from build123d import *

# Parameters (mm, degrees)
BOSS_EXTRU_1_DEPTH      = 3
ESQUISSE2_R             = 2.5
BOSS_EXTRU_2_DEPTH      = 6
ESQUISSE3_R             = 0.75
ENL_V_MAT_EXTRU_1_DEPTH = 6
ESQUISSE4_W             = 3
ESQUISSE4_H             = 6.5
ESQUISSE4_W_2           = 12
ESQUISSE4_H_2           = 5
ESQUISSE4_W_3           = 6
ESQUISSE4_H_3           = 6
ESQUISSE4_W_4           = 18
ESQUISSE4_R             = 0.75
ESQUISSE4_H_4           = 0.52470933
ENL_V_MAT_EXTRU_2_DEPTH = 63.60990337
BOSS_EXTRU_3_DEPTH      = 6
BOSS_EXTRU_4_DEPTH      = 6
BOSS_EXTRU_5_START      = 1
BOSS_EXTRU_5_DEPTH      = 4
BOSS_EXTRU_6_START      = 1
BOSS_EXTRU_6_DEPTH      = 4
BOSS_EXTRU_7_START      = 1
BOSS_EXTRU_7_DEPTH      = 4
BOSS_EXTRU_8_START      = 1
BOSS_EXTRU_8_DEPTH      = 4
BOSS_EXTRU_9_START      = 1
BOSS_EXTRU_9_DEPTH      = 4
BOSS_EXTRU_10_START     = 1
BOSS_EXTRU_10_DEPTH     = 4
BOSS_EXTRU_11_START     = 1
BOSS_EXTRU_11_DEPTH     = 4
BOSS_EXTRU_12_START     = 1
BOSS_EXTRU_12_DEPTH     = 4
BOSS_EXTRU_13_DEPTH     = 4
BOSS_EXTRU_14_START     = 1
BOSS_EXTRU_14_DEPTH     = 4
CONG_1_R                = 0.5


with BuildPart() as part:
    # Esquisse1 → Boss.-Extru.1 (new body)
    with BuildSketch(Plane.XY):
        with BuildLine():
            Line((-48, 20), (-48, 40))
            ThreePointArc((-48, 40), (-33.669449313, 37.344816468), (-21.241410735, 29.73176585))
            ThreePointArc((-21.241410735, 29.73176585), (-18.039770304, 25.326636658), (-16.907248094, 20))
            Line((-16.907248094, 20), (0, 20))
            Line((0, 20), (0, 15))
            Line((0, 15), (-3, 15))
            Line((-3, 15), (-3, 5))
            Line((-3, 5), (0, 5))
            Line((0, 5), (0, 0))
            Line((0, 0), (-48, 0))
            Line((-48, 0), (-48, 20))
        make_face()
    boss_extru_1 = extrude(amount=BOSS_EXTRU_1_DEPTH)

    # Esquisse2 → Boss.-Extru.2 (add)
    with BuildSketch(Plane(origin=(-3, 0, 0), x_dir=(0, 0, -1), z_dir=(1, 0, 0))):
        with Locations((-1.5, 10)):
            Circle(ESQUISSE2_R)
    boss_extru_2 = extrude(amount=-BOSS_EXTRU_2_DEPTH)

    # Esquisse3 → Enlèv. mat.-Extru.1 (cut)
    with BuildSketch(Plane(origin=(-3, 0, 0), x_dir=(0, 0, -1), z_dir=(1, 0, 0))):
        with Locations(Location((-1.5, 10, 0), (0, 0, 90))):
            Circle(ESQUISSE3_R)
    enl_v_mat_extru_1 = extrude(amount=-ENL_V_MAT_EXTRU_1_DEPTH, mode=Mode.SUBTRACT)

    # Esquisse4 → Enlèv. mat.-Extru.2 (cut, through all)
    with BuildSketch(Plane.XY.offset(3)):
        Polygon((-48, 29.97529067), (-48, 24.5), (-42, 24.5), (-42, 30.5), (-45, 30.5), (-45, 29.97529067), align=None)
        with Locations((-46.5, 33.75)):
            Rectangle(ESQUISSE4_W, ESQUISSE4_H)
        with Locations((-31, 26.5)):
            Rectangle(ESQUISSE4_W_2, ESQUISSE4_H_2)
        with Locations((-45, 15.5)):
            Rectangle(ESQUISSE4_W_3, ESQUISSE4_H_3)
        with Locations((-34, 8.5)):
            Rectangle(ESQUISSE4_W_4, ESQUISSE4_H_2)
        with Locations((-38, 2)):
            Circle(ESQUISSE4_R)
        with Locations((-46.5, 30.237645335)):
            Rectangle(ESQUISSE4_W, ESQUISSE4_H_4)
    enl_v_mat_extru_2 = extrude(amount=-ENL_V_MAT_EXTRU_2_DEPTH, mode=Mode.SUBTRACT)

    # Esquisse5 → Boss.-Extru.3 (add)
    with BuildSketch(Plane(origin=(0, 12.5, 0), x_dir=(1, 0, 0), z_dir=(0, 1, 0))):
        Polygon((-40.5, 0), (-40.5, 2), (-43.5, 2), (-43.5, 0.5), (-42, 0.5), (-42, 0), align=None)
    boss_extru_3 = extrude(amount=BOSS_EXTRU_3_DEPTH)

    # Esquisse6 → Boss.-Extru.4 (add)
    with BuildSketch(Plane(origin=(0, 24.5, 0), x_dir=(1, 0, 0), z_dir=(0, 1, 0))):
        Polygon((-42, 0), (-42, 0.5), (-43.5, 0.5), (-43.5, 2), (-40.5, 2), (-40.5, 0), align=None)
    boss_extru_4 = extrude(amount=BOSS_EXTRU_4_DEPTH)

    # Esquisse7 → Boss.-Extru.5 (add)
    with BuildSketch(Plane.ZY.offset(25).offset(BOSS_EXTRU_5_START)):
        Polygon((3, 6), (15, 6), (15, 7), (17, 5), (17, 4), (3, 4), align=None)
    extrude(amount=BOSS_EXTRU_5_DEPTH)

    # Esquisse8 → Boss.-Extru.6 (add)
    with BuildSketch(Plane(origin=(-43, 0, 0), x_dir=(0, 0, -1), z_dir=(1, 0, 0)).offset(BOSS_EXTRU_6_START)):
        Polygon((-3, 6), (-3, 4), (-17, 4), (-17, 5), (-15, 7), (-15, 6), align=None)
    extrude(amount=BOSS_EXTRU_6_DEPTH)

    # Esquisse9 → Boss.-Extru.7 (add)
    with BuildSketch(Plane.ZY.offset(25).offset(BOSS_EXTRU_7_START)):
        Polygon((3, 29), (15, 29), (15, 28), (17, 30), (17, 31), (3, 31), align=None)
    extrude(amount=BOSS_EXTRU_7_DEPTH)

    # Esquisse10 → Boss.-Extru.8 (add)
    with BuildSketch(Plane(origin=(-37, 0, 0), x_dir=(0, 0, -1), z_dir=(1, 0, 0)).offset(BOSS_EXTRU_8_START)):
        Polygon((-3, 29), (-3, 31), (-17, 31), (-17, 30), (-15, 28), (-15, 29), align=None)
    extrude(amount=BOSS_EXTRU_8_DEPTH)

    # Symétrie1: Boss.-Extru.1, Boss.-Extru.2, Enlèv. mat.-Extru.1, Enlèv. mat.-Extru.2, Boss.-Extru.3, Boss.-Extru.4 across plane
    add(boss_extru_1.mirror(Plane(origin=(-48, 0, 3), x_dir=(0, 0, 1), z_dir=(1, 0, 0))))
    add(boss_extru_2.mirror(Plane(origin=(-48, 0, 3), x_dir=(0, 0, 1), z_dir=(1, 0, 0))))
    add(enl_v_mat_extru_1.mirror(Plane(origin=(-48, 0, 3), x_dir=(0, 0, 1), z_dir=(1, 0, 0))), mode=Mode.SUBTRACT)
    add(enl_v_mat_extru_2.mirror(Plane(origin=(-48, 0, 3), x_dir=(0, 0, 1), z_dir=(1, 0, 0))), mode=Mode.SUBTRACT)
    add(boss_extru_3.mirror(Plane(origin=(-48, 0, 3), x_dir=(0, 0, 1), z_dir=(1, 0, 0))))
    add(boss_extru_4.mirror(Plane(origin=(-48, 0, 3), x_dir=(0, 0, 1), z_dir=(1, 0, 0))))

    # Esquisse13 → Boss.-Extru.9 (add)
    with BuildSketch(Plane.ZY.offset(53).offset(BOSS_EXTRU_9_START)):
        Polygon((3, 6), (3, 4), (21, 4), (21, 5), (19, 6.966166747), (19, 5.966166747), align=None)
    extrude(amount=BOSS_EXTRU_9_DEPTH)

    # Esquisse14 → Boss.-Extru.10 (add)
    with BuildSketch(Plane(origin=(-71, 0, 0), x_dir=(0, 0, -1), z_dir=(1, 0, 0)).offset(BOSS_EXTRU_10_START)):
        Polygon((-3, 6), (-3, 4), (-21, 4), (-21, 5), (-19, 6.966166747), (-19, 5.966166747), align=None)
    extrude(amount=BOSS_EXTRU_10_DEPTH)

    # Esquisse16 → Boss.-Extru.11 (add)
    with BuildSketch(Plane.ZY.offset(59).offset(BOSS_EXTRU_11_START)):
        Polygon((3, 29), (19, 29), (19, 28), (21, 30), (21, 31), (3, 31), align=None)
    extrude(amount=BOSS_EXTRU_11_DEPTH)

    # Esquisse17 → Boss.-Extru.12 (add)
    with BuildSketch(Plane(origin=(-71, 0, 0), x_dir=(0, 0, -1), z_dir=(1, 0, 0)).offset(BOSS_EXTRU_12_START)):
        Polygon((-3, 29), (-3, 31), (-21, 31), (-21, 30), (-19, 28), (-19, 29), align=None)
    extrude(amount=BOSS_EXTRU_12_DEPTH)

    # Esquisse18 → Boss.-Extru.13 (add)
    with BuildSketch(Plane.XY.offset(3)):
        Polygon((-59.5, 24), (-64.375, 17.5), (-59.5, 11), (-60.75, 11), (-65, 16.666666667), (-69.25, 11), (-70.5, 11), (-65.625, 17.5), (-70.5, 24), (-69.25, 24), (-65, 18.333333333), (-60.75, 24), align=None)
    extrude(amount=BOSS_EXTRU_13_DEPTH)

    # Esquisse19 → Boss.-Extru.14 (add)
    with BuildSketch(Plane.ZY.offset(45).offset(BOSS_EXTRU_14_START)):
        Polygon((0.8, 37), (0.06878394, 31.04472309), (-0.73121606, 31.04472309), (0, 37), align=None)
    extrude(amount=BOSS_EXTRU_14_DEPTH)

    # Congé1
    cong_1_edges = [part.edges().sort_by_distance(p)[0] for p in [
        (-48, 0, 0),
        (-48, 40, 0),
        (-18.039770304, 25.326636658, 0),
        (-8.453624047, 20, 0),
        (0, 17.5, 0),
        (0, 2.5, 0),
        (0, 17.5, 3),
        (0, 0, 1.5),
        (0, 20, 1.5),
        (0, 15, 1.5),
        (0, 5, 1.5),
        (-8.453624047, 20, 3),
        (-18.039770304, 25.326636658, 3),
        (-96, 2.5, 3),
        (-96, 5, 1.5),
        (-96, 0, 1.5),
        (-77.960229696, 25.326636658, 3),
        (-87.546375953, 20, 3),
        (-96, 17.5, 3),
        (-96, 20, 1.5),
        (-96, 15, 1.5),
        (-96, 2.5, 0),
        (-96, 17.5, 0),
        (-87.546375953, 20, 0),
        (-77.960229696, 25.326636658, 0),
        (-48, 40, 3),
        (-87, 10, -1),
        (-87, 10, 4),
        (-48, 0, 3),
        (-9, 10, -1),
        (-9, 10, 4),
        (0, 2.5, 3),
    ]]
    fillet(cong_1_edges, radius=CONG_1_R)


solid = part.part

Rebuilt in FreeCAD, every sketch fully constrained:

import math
import FreeCAD as App
import Part
import Sketcher
Q = App.Units.Quantity


def edges_at(feature, points):
    """Names of the edges that pass closest to the given points."""
    edges = feature.Shape.Edges
    near = lambda p: min(range(len(edges)), key=lambda i: edges[i].distToShape(Part.Vertex(*p))[0])
    return sorted({f"Edge{near(p) + 1}" for p in points})


def add_polygon(sketch, points):
    """Adds a closed chain of lines whose ends are joined by coincident constraints."""
    first, n = sketch.GeometryCount, len(points)
    for a, b in zip(points, points[1:] + points[:1]):
        sketch.addGeometry(Part.LineSegment(App.Vector(*a, 0), App.Vector(*b, 0)), False)
    for i in range(n):
        sketch.addConstraint(Sketcher.Constraint("Coincident", first + i, 2, first + (i + 1) % n, 1))

doc = App.newDocument("Part")
body = doc.addObject("PartDesign::Body", "Body")

# Sketch on XY plane
sketch1 = body.newObject("Sketcher::SketchObject", "Sketch")
sketch1.AttachmentSupport = (doc.getObject("XY_Plane"), [""])
sketch1.MapMode = "FlatFace"
sketch1.addGeometry([
    Part.ArcOfCircle(Part.Circle(App.Vector(-48, 0, 0), App.Vector(0, 0, 1), 40), math.radians(48), math.radians(90)),  # 0
    Part.LineSegment(App.Vector(-48, 40, 0), App.Vector(-48, 0, 0)),  # 1
    Part.LineSegment(App.Vector(-48, 0, 0), App.Vector(0, 0, 0)),  # 2
    Part.LineSegment(App.Vector(0, 0, 0), App.Vector(0, 5, 0)),  # 3
    Part.LineSegment(App.Vector(0, 5, 0), App.Vector(-3, 5, 0)),  # 4
    Part.LineSegment(App.Vector(-3, 5, 0), App.Vector(-3, 15, 0)),  # 5
    Part.LineSegment(App.Vector(-3, 15, 0), App.Vector(0, 15, 0)),  # 6
    Part.LineSegment(App.Vector(0, 15, 0), App.Vector(0, 20, 0)),  # 7
    Part.LineSegment(App.Vector(0, 20, 0), App.Vector(-16.9, 20, 0)),  # 8
    Part.ArcOfCircle(Part.Circle(App.Vector(-30, 20, 0), App.Vector(0, 0, 1), 13.1), math.radians(0), math.radians(48)),  # 9
], False)
sketch1.addConstraint([
    Sketcher.Constraint("Coincident", 0, 2, 1, 1),
    Sketcher.Constraint("Coincident", 1, 2, 2, 1),
    Sketcher.Constraint("Coincident", 2, 2, 3, 1),
    Sketcher.Constraint("Coincident", 3, 2, 4, 1),
    Sketcher.Constraint("Coincident", 4, 2, 5, 1),
    Sketcher.Constraint("Coincident", 5, 2, 6, 1),
    Sketcher.Constraint("Coincident", 6, 2, 7, 1),
    Sketcher.Constraint("Coincident", 7, 2, 8, 1),
    Sketcher.Constraint("Coincident", 8, 2, 9, 1),
    Sketcher.Constraint("Tangent", 9, 2, 0, 1),
    Sketcher.Constraint("Vertical", 1),
    Sketcher.Constraint("Horizontal", 2),
    Sketcher.Constraint("Vertical", 3),
    Sketcher.Constraint("Horizontal", 4),
    Sketcher.Constraint("Vertical", 5),
    Sketcher.Constraint("Horizontal", 6),
    Sketcher.Constraint("Vertical", 7),
    Sketcher.Constraint("Horizontal", 8),
    Sketcher.Constraint("Coincident", 2, 2, -1, 1),
    Sketcher.Constraint("Coincident", 1, 2, 0, 3),
    Sketcher.Constraint("PointOnObject", 6, 2, -2),
    Sketcher.Constraint("Horizontal", 9, 3, 7, 2),
    Sketcher.Constraint("Equal", 3, 7),
    Sketcher.Constraint("Radius", 0, 40.0),
    Sketcher.Constraint("DistanceX", 2, 1, 2, 2, 48.0),
    Sketcher.Constraint("DistanceX", 4, 2, 4, 1, 3.0),
    Sketcher.Constraint("DistanceY", 3, 1, 3, 2, 5.0),
    Sketcher.Constraint("DistanceY", 5, 1, 5, 2, 10.0),
    Sketcher.Constraint("DistanceX", 9, 3, -1, 1, 30.0),
])
pad1 = body.newObject("PartDesign::Pad", "Pad")
pad1.Profile = sketch1
pad1.Length = 3

# Sketch on YZ plane
sketch2 = body.newObject("Sketcher::SketchObject", "Sketch001")
sketch2.AttachmentSupport = (doc.getObject("YZ_Plane"), [""])
sketch2.MapMode = "FlatFace"
sketch2.AttachmentOffset = App.Placement(App.Vector(0, 0, -3), App.Rotation())
sketch2.addGeometry(Part.Circle(App.Vector(10, 1.5, 0), App.Vector(0, 0, 1), 2.5), False)
sketch2.addConstraint([
    Sketcher.Constraint("Diameter", 0, 5.0),
    Sketcher.Constraint("DistanceX", -1, 1, 0, 3, 10.0),
    Sketcher.Constraint("DistanceY", -1, 1, 0, 3, 1.5),
])
pad2 = body.newObject("PartDesign::Pad", "Pad001")
pad2.Profile = sketch2
pad2.Length = 6
pad2.Reversed = True

# Sketch on YZ plane
sketch3 = body.newObject("Sketcher::SketchObject", "Sketch002")
sketch3.AttachmentSupport = (doc.getObject("YZ_Plane"), [""])
sketch3.MapMode = "FlatFace"
sketch3.AttachmentOffset = App.Placement(App.Vector(0, 0, -3), App.Rotation())
sketch3.addGeometry(Part.Circle(App.Vector(10, 1.5, 0), App.Vector(0, 0, 1), 0.8), False)
sketch3.addConstraint([
    Sketcher.Constraint("Diameter", 0, 1.5),
    Sketcher.Constraint("DistanceX", -1, 1, 0, 3, 10.0),
    Sketcher.Constraint("DistanceY", -1, 1, 0, 3, 1.5),
])
pocket1 = body.newObject("PartDesign::Pocket", "Pocket")
pocket1.Profile = sketch3
pocket1.Length = 6

# Sketch on XY plane
sketch4 = body.newObject("Sketcher::SketchObject", "Sketch003")
sketch4.AttachmentSupport = (doc.getObject("XY_Plane"), [""])
sketch4.MapMode = "FlatFace"
sketch4.AttachmentOffset = App.Placement(App.Vector(0, 0, 3), App.Rotation())
add_polygon(sketch4, [(-48, 24.5), (-42, 24.5), (-42, 30.5), (-45, 30.5), (-45, 37), (-48, 37)])  # lines 0-5
add_polygon(sketch4, [(-37, 29), (-37, 24), (-25, 24), (-25, 29)])  # lines 6-9
add_polygon(sketch4, [(-48, 18.5), (-48, 12.5), (-42, 12.5), (-42, 18.5)])  # lines 10-13
add_polygon(sketch4, [(-43, 11), (-43, 6), (-25, 6), (-25, 11)])  # lines 14-17
sketch4.addGeometry(Part.Circle(App.Vector(-38, 2, 0), App.Vector(0, 0, 1), 0.8), False)  # 18
sketch4.addConstraint([
    Sketcher.Constraint("Horizontal", 0),
    Sketcher.Constraint("Vertical", 1),
    Sketcher.Constraint("Horizontal", 2),
    Sketcher.Constraint("Vertical", 3),
    Sketcher.Constraint("Horizontal", 4),
    Sketcher.Constraint("Vertical", 5),
    Sketcher.Constraint("Vertical", 6),
    Sketcher.Constraint("Horizontal", 7),
    Sketcher.Constraint("Vertical", 8),
    Sketcher.Constraint("Horizontal", 9),
    Sketcher.Constraint("Vertical", 10),
    Sketcher.Constraint("Horizontal", 11),
    Sketcher.Constraint("Vertical", 12),
    Sketcher.Constraint("Horizontal", 13),
    Sketcher.Constraint("Vertical", 14),
    Sketcher.Constraint("Horizontal", 15),
    Sketcher.Constraint("Vertical", 16),
    Sketcher.Constraint("Horizontal", 17),
    Sketcher.Constraint("Vertical", 5, 2, 10, 2),
    Sketcher.Constraint("Vertical", 1, 2, 11, 2),
    Sketcher.Constraint("Vertical", 8, 2, 15, 2),
    Sketcher.Constraint("Equal", 2, 4),
    Sketcher.Constraint("Equal", 13, 1),
    Sketcher.Constraint("Equal", 1, 10),
    Sketcher.Constraint("Equal", 8, 14),
    Sketcher.Constraint("Diameter", 18, 1.5),
    Sketcher.Constraint("DistanceX", 0, 1, 0, 2, 6.0),
    Sketcher.Constraint("DistanceX", 7, 1, 7, 2, 12.0),
    Sketcher.Constraint("DistanceX", 15, 1, 15, 2, 18.0),
    Sketcher.Constraint("DistanceY", 6, 2, 6, 1, 5.0),
    Sketcher.Constraint("DistanceY", 3, 1, 3, 2, 6.5),
    Sketcher.Constraint("DistanceX", 18, 3, -1, 1, 38.0),
    Sketcher.Constraint("DistanceY", -1, 1, 18, 3, 2.0),
    Sketcher.Constraint("DistanceX", 0, 2, -1, 1, 42.0),
    Sketcher.Constraint("DistanceY", -1, 1, 3, 2, 37.0),
    Sketcher.Constraint("DistanceX", 6, 2, -1, 1, 37.0),
    Sketcher.Constraint("DistanceY", -1, 1, 6, 2, 24.0),
    Sketcher.Constraint("DistanceY", -1, 1, 14, 2, 6.0),
    Sketcher.Constraint("DistanceY", 10, 2, 5, 2, 12.0),
])
pocket2 = body.newObject("PartDesign::Pocket", "Pocket001")
pocket2.Profile = sketch4
pocket2.Type = "ThroughAll"

# Sketch on XZ plane
sketch5 = body.newObject("Sketcher::SketchObject", "Sketch004")
sketch5.AttachmentSupport = (doc.getObject("XZ_Plane"), [""])
sketch5.MapMode = "FlatFace"
sketch5.AttachmentOffset = App.Placement(App.Vector(0, 0, -12.5), App.Rotation())
add_polygon(sketch5, [(-40.5, 0), (-40.5, -2), (-43.5, -2), (-43.5, -0.5), (-42, -0.5), (-42, 0)])  # lines 0-5
sketch5.addConstraint([
    Sketcher.Constraint("Vertical", 0),
    Sketcher.Constraint("Horizontal", 1),
    Sketcher.Constraint("Vertical", 2),
    Sketcher.Constraint("Horizontal", 3),
    Sketcher.Constraint("Vertical", 4),
    Sketcher.Constraint("Horizontal", 5),
    Sketcher.Constraint("PointOnObject", 4, 2, -1),
    Sketcher.Constraint("Equal", 3, 5),
    Sketcher.Constraint("Equal", 5, 2),
    Sketcher.Constraint("DistanceX", 1, 2, 1, 1, 3.0),
    Sketcher.Constraint("DistanceY", 0, 2, 0, 1, 2.0),
    Sketcher.Constraint("DistanceX", 3, 2, -1, 1, 42.0),
])
pad3 = body.newObject("PartDesign::Pad", "Pad002")
pad3.Profile = sketch5
pad3.Length = 6
pad3.Reversed = True

# Sketch on XZ plane
sketch6 = body.newObject("Sketcher::SketchObject", "Sketch005")
sketch6.AttachmentSupport = (doc.getObject("XZ_Plane"), [""])
sketch6.MapMode = "FlatFace"
sketch6.AttachmentOffset = App.Placement(App.Vector(0, 0, -24.5), App.Rotation())
add_polygon(sketch6, [(-42, -0.5), (-42, 0), (-40.5, 0), (-40.5, -2), (-43.5, -2), (-43.5, -0.5)])  # lines 0-5
sketch6.addConstraint([
    Sketcher.Constraint("Vertical", 0),
    Sketcher.Constraint("Horizontal", 1),
    Sketcher.Constraint("Vertical", 2),
    Sketcher.Constraint("Horizontal", 3),
    Sketcher.Constraint("Vertical", 4),
    Sketcher.Constraint("Horizontal", 5),
    Sketcher.Constraint("PointOnObject", 0, 2, -1),
    Sketcher.Constraint("Equal", 1, 5),
    Sketcher.Constraint("Equal", 5, 4),
    Sketcher.Constraint("DistanceX", 3, 2, 3, 1, 3.0),
    Sketcher.Constraint("DistanceY", 2, 2, 2, 1, 2.0),
    Sketcher.Constraint("DistanceX", 0, 2, -1, 1, 42.0),
])
pad4 = body.newObject("PartDesign::Pad", "Pad003")
pad4.Profile = sketch6
pad4.Length = 6
pad4.Reversed = True

# Sketch on YZ plane
sketch7 = body.newObject("Sketcher::SketchObject", "Sketch006")
sketch7.AttachmentSupport = (doc.getObject("YZ_Plane"), [""])
sketch7.MapMode = "FlatFace"
sketch7.AttachmentOffset = App.Placement(App.Vector(0, 0, -26), App.Rotation())
add_polygon(sketch7, [(6, 15), (6, 3), (4, 3), (4, 17), (5, 17), (7, 15)])  # lines 0-5
sketch7.addConstraint([
    Sketcher.Constraint("Vertical", 0),
    Sketcher.Constraint("Horizontal", 1),
    Sketcher.Constraint("Vertical", 2),
    Sketcher.Constraint("Horizontal", 3),
    Sketcher.Constraint("Horizontal", 5),
    Sketcher.Constraint("Equal", 3, 5),
    Sketcher.Constraint("DistanceX", 1, 2, 1, 1, 2.0),
    Sketcher.Constraint("DistanceX", 3, 1, 3, 2, 1.0),
    Sketcher.Constraint("DistanceY", 0, 2, 0, 1, 12.0),
    Sketcher.Constraint("DistanceY", 2, 1, 2, 2, 14.0),
    Sketcher.Constraint("DistanceX", -1, 1, 0, 2, 6.0),
    Sketcher.Constraint("DistanceY", -1, 1, 0, 2, 3.0),
])
pad5 = body.newObject("PartDesign::Pad", "Pad004")
pad5.Profile = sketch7
pad5.Length = 4
pad5.Reversed = True

# Sketch on YZ plane
sketch8 = body.newObject("Sketcher::SketchObject", "Sketch007")
sketch8.AttachmentSupport = (doc.getObject("YZ_Plane"), [""])
sketch8.MapMode = "FlatFace"
sketch8.AttachmentOffset = App.Placement(App.Vector(0, 0, -42), App.Rotation())
add_polygon(sketch8, [(4, 3), (6, 3), (6, 15), (7, 15), (5, 17), (4, 17)])  # lines 0-5
sketch8.addConstraint([
    Sketcher.Constraint("Horizontal", 0),
    Sketcher.Constraint("Vertical", 1),
    Sketcher.Constraint("Horizontal", 2),
    Sketcher.Constraint("Horizontal", 4),
    Sketcher.Constraint("Vertical", 5),
    Sketcher.Constraint("Equal", 2, 4),
    Sketcher.Constraint("DistanceX", 0, 1, 0, 2, 2.0),
    Sketcher.Constraint("DistanceX", 2, 1, 2, 2, 1.0),
    Sketcher.Constraint("DistanceY", 1, 1, 1, 2, 12.0),
    Sketcher.Constraint("DistanceY", 5, 2, 5, 1, 14.0),
    Sketcher.Constraint("DistanceX", -1, 1, 0, 2, 6.0),
    Sketcher.Constraint("DistanceY", -1, 1, 0, 2, 3.0),
])
pad6 = body.newObject("PartDesign::Pad", "Pad005")
pad6.Profile = sketch8
pad6.Length = 4

# Sketch on YZ plane
sketch9 = body.newObject("Sketcher::SketchObject", "Sketch008")
sketch9.AttachmentSupport = (doc.getObject("YZ_Plane"), [""])
sketch9.MapMode = "FlatFace"
sketch9.AttachmentOffset = App.Placement(App.Vector(0, 0, -26), App.Rotation())
add_polygon(sketch9, [(29, 3), (29, 15), (28, 15), (30, 17), (31, 17), (31, 3)])  # lines 0-5
sketch9.addConstraint([
    Sketcher.Constraint("Vertical", 0),
    Sketcher.Constraint("Horizontal", 1),
    Sketcher.Constraint("Horizontal", 3),
    Sketcher.Constraint("Vertical", 4),
    Sketcher.Constraint("Horizontal", 5),
    Sketcher.Constraint("Equal", 1, 3),
    Sketcher.Constraint("DistanceX", 1, 2, 1, 1, 1.0),
    Sketcher.Constraint("DistanceX", 5, 2, 5, 1, 2.0),
    Sketcher.Constraint("DistanceY", 0, 1, 0, 2, 12.0),
    Sketcher.Constraint("DistanceY", 4, 2, 4, 1, 14.0),
    Sketcher.Constraint("DistanceX", -1, 1, 0, 2, 29.0),
    Sketcher.Constraint("DistanceY", -1, 1, 0, 2, 15.0),
])
pad7 = body.newObject("PartDesign::Pad", "Pad006")
pad7.Profile = sketch9
pad7.Length = 4
pad7.Reversed = True

# Sketch on YZ plane
sketch10 = body.newObject("Sketcher::SketchObject", "Sketch009")
sketch10.AttachmentSupport = (doc.getObject("YZ_Plane"), [""])
sketch10.MapMode = "FlatFace"
sketch10.AttachmentOffset = App.Placement(App.Vector(0, 0, -36), App.Rotation())
add_polygon(sketch10, [(29, 3), (31, 3), (31, 17), (30, 17), (28, 15), (29, 15)])  # lines 0-5
sketch10.addConstraint([
    Sketcher.Constraint("Horizontal", 0),
    Sketcher.Constraint("Vertical", 1),
    Sketcher.Constraint("Horizontal", 2),
    Sketcher.Constraint("Horizontal", 4),
    Sketcher.Constraint("Vertical", 5),
    Sketcher.Constraint("Equal", 2, 4),
    Sketcher.Constraint("DistanceX", 0, 1, 0, 2, 2.0),
    Sketcher.Constraint("DistanceX", 2, 2, 2, 1, 1.0),
    Sketcher.Constraint("DistanceY", 1, 1, 1, 2, 14.0),
    Sketcher.Constraint("DistanceY", 5, 2, 5, 1, 12.0),
    Sketcher.Constraint("DistanceX", -1, 1, 0, 2, 31.0),
    Sketcher.Constraint("DistanceY", -1, 1, 0, 2, 3.0),
])
pad8 = body.newObject("PartDesign::Pad", "Pad007")
pad8.Profile = sketch10
pad8.Length = 4
doc.recompute()

datumplane = body.newObject("PartDesign::Plane", "DatumPlane")
datumplane.AttachmentSupport = (doc.getObject("YZ_Plane"), [""])
datumplane.MapMode = "FlatFace"
datumplane.AttachmentOffset = App.Placement(App.Vector(0, 0, -48), App.Rotation())
mirrored = body.newObject("PartDesign::Mirrored", "Mirrored")
mirrored.Originals = [pad1, pad2, pocket1, pocket2, pad3, pad4]
mirrored.MirrorPlane = (datumplane, [""])
body.Tip = mirrored

# Sketch on YZ plane
sketch11 = body.newObject("Sketcher::SketchObject", "Sketch010")
sketch11.AttachmentSupport = (doc.getObject("YZ_Plane"), [""])
sketch11.MapMode = "FlatFace"
sketch11.AttachmentOffset = App.Placement(App.Vector(0, 0, -54), App.Rotation())
add_polygon(sketch11, [(6, 3), (4, 3), (4, 21), (5, 21), (7, 19), (6, 19)])  # lines 0-5
sketch11.addConstraint([
    Sketcher.Constraint("Horizontal", 0),
    Sketcher.Constraint("Vertical", 1),
    Sketcher.Constraint("Horizontal", 2),
    Sketcher.Constraint("Horizontal", 4),
    Sketcher.Constraint("Equal", 2, 4),
    Sketcher.Constraint("DistanceX", 0, 2, 0, 1, 2.0),
    Sketcher.Constraint("DistanceX", 2, 1, 2, 2, 1.0),
    Sketcher.Constraint("DistanceY", 1, 1, 1, 2, 18.0),
    Sketcher.Constraint("DistanceX", -1, 1, 0, 2, 4.0),
    Sketcher.Constraint("DistanceY", -1, 1, 0, 2, 3.0),
    Sketcher.Constraint("DistanceY", -1, 1, 3, 2, 19.0),
    Sketcher.Constraint("Distance", 3, 2.804605),
])
pad9 = body.newObject("PartDesign::Pad", "Pad008")
pad9.Profile = sketch11
pad9.Length = 4
pad9.Reversed = True

# Sketch on YZ plane
sketch12 = body.newObject("Sketcher::SketchObject", "Sketch011")
sketch12.AttachmentSupport = (doc.getObject("YZ_Plane"), [""])
sketch12.MapMode = "FlatFace"
sketch12.AttachmentOffset = App.Placement(App.Vector(0, 0, -70), App.Rotation())
add_polygon(sketch12, [(4, 3), (6, 3), (6, 19), (7, 19), (5, 21), (4, 21)])  # lines 0-5
sketch12.addConstraint([
    Sketcher.Constraint("Horizontal", 0),
    Sketcher.Constraint("Horizontal", 2),
    Sketcher.Constraint("Horizontal", 4),
    Sketcher.Constraint("Vertical", 5),
    Sketcher.Constraint("Equal", 2, 4),
    Sketcher.Constraint("DistanceX", 0, 1, 0, 2, 2.0),
    Sketcher.Constraint("DistanceX", 2, 1, 2, 2, 1.0),
    Sketcher.Constraint("DistanceY", 5, 2, 5, 1, 18.0),
    Sketcher.Constraint("DistanceX", -1, 1, 0, 2, 6.0),
    Sketcher.Constraint("DistanceY", -1, 1, 0, 2, 3.0),
    Sketcher.Constraint("DistanceY", -1, 1, 1, 2, 19.0),
    Sketcher.Constraint("Distance", 3, 2.804605),
])
pad10 = body.newObject("PartDesign::Pad", "Pad009")
pad10.Profile = sketch12
pad10.Length = 4

# Sketch on YZ plane
sketch13 = body.newObject("Sketcher::SketchObject", "Sketch012")
sketch13.AttachmentSupport = (doc.getObject("YZ_Plane"), [""])
sketch13.MapMode = "FlatFace"
sketch13.AttachmentOffset = App.Placement(App.Vector(0, 0, -60), App.Rotation())
add_polygon(sketch13, [(29, 3), (29, 19), (28, 19), (30, 21), (31, 21), (31, 3)])  # lines 0-5
sketch13.addConstraint([
    Sketcher.Constraint("Vertical", 0),
    Sketcher.Constraint("Horizontal", 1),
    Sketcher.Constraint("Horizontal", 3),
    Sketcher.Constraint("Vertical", 4),
    Sketcher.Constraint("Horizontal", 5),
    Sketcher.Constraint("Equal", 1, 3),
    Sketcher.Constraint("DistanceX", 1, 2, 1, 1, 1.0),
    Sketcher.Constraint("DistanceX", 5, 2, 5, 1, 2.0),
    Sketcher.Constraint("DistanceY", 0, 1, 0, 2, 16.0),
    Sketcher.Constraint("DistanceY", 4, 2, 4, 1, 18.0),
    Sketcher.Constraint("DistanceX", -1, 1, 0, 2, 29.0),
    Sketcher.Constraint("DistanceY", -1, 1, 0, 2, 19.0),
])
pad11 = body.newObject("PartDesign::Pad", "Pad010")
pad11.Profile = sketch13
pad11.Length = 4
pad11.Reversed = True

# Sketch on YZ plane
sketch14 = body.newObject("Sketcher::SketchObject", "Sketch013")
sketch14.AttachmentSupport = (doc.getObject("YZ_Plane"), [""])
sketch14.MapMode = "FlatFace"
sketch14.AttachmentOffset = App.Placement(App.Vector(0, 0, -70), App.Rotation())
add_polygon(sketch14, [(29, 3), (31, 3), (31, 21), (30, 21), (28, 19), (29, 19)])  # lines 0-5
sketch14.addConstraint([
    Sketcher.Constraint("Horizontal", 0),
    Sketcher.Constraint("Vertical", 1),
    Sketcher.Constraint("Horizontal", 2),
    Sketcher.Constraint("Horizontal", 4),
    Sketcher.Constraint("Vertical", 5),
    Sketcher.Constraint("Equal", 2, 4),
    Sketcher.Constraint("DistanceX", 0, 1, 0, 2, 2.0),
    Sketcher.Constraint("DistanceX", 2, 2, 2, 1, 1.0),
    Sketcher.Constraint("DistanceY", 1, 1, 1, 2, 18.0),
    Sketcher.Constraint("DistanceY", 5, 2, 5, 1, 16.0),
    Sketcher.Constraint("DistanceX", -1, 1, 0, 2, 31.0),
    Sketcher.Constraint("DistanceY", -1, 1, 0, 2, 3.0),
])
pad12 = body.newObject("PartDesign::Pad", "Pad011")
pad12.Profile = sketch14
pad12.Length = 4

# Sketch on XY plane
sketch15 = body.newObject("Sketcher::SketchObject", "Sketch014")
sketch15.AttachmentSupport = (doc.getObject("XY_Plane"), [""])
sketch15.MapMode = "FlatFace"
sketch15.AttachmentOffset = App.Placement(App.Vector(0, 0, 3), App.Rotation())
add_polygon(sketch15, [(-64.4, 17.5), (-59.5, 24), (-60.8, 24), (-65, 18.3), (-69.2, 24), (-70.5, 24), (-65.6, 17.5), (-70.5, 11), (-69.2, 11), (-65, 16.7), (-60.8, 11), (-59.5, 11)])  # lines 0-11
sketch15.addConstraint([
    Sketcher.Constraint("Horizontal", 1),
    Sketcher.Constraint("Horizontal", 4),
    Sketcher.Constraint("Horizontal", 7),
    Sketcher.Constraint("Horizontal", 10),
    Sketcher.Constraint("Parallel", 0, 2),
    Sketcher.Constraint("Parallel", 3, 5),
    Sketcher.Constraint("Parallel", 2, 6),
    Sketcher.Constraint("Parallel", 6, 8),
    Sketcher.Constraint("Parallel", 5, 9),
    Sketcher.Constraint("Parallel", 9, 11),
    Sketcher.Constraint("Horizontal", 1, 2, 3, 2),
    Sketcher.Constraint("Horizontal", 7, 2, 9, 2),
    Sketcher.Constraint("Horizontal", 5, 2, 11, 2),
    Sketcher.Constraint("Vertical", 4, 2, 6, 2),
    Sketcher.Constraint("Vertical", 3, 2, 7, 2),
    Sketcher.Constraint("Vertical", 2, 2, 8, 2),
    Sketcher.Constraint("Vertical", 1, 2, 9, 2),
    Sketcher.Constraint("Equal", 1, 4),
    Sketcher.Constraint("DistanceY", -1, 1, 0, 2, 24.0),
    Sketcher.Constraint("DistanceX", 2, 2, -1, 1, 65.0),
    Sketcher.Constraint("DistanceY", -1, 1, 6, 2, 11.0),
    Sketcher.Constraint("DistanceX", 4, 2, 0, 2, 11.0),
    Sketcher.Constraint("DistanceX", 1, 2, 1, 1, 1.25),
    Sketcher.Constraint("DistanceX", 5, 2, 11, 2, 1.25),
])
pad13 = body.newObject("PartDesign::Pad", "Pad012")
pad13.Profile = sketch15
pad13.Length = 4

# Sketch on YZ plane
sketch16 = body.newObject("Sketcher::SketchObject", "Sketch015")
sketch16.AttachmentSupport = (doc.getObject("YZ_Plane"), [""])
sketch16.MapMode = "FlatFace"
sketch16.AttachmentOffset = App.Placement(App.Vector(0, 0, -46), App.Rotation())
add_polygon(sketch16, [(31, 0.1), (37, 0.8), (37, 0), (31, -0.7)])  # lines 0-3
sketch16.addConstraint([
    Sketcher.Constraint("Vertical", 1),
    Sketcher.Constraint("Vertical", 3),
    Sketcher.Constraint("PointOnObject", 1, 2, -1),
    Sketcher.Constraint("Parallel", 0, 2),
    Sketcher.Constraint("Angle", 0, Q("7 deg")),
    Sketcher.Constraint("Distance", 0, 6.0),
    Sketcher.Constraint("DistanceY", 1, 2, 1, 1, 0.8),
    Sketcher.Constraint("DistanceX", -1, 1, 0, 2, 37.0),
])
pad14 = body.newObject("PartDesign::Pad", "Pad013")
pad14.Profile = sketch16
pad14.Length = 4
pad14.Reversed = True
doc.recompute()

fillet = body.newObject("PartDesign::Fillet", "Fillet")
fillet.Base = (pad14, edges_at(pad14, [
    (-48, 0, 0),
    (-33.669, 37.345, 0),
    (-18.04, 25.327, 0),
    (-8.454, 20, 0),
    (0, 17.5, 0),
    (0, 2.5, 0),
    (0, 17.5, 3),
    (0, 0, 1.5),
    (0, 20, 1.5),
    (0, 15, 1.5),
    (0, 5, 1.5),
    (-8.454, 20, 3),
    (-18.04, 25.327, 3),
    (-96, 2.5, 3),
    (-96, 5, 1.5),
    (-96, 0, 1.5),
    (-77.96, 25.327, 3),
    (-87.546, 20, 3),
    (-96, 17.5, 3),
    (-96, 20, 1.5),
    (-96, 15, 1.5),
    (-96, 2.5, 0),
    (-96, 17.5, 0),
    (-87.546, 20, 0),
    (-77.96, 25.327, 0),
    (-33.669, 37.345, 3),
    (-87, 10, -1),
    (-87, 10, 4),
    (-48, 0, 3),
    (-9, 10, -1),
    (-9, 10, 4),
    (0, 2.5, 3),
]))
fillet.Radius = 0.5

doc.recompute()
